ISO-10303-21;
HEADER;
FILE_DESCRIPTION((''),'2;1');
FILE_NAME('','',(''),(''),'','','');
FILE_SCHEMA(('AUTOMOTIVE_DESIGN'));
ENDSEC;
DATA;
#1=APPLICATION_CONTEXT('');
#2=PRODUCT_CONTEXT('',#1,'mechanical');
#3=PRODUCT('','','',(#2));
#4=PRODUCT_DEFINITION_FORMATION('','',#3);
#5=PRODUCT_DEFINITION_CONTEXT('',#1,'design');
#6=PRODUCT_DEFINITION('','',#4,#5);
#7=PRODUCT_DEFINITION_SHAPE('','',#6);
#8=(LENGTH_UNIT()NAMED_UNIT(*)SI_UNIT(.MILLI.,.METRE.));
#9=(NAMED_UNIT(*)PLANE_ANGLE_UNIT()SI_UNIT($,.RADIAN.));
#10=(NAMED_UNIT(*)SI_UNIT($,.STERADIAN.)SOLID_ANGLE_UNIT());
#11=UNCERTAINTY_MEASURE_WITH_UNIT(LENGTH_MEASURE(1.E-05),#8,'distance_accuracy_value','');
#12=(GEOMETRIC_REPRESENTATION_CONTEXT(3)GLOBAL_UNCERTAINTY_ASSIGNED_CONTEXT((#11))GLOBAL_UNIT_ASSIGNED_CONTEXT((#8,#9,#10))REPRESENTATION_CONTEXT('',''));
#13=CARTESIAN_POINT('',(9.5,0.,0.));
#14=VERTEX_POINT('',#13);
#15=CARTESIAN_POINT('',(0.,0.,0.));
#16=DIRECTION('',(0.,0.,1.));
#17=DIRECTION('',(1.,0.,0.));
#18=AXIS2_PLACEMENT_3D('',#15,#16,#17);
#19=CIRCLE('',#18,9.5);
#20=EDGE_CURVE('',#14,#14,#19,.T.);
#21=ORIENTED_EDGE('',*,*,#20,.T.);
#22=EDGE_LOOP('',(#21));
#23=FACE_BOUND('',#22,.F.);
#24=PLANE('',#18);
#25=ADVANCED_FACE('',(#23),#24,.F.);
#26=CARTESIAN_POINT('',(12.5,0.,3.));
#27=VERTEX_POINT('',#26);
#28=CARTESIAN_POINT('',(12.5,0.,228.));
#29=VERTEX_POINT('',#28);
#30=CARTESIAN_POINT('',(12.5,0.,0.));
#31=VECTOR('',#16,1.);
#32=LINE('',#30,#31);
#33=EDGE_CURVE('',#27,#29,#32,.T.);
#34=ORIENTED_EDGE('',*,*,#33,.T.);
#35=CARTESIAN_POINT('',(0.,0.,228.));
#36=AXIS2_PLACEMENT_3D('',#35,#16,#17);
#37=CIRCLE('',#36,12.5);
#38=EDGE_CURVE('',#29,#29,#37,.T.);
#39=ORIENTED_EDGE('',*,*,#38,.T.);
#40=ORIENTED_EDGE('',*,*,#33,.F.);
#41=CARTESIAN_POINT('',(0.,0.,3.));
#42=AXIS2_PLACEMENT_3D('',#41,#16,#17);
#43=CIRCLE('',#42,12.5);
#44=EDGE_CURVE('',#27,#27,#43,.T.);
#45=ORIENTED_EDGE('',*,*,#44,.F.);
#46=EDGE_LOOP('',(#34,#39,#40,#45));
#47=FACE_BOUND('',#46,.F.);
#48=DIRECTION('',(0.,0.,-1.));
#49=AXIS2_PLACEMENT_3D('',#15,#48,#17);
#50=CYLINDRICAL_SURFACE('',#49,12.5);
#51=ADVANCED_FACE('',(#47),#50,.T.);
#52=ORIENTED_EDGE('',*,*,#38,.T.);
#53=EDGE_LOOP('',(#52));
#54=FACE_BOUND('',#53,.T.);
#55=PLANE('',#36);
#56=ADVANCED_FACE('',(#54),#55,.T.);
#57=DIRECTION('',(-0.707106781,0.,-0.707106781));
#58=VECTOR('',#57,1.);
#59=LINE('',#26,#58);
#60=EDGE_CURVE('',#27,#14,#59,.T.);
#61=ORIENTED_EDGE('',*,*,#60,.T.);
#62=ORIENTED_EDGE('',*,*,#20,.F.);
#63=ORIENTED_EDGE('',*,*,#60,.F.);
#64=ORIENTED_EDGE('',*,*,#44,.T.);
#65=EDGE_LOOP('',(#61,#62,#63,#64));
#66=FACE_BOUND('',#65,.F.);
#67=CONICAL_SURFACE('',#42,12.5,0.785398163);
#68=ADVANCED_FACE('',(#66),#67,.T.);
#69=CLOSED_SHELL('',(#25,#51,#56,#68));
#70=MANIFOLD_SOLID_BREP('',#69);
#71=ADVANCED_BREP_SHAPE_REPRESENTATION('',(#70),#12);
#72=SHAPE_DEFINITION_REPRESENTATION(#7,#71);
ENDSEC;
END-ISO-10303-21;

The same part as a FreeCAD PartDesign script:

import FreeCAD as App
import Part
import Sketcher
from FreeCAD import Vector


def edges_at(feature, points):
    """Names of the edges that pass closest to the given points."""
    edges = feature.Shape.Edges
    near = lambda p: min(range(len(edges)), key=lambda i: edges[i].distToShape(Part.Vertex(*p))[0])
    return sorted({f"Edge{near(p) + 1}" for p in points})

doc = App.newDocument("Part")
body = doc.addObject("PartDesign::Body", "Body")

# Sketch on XY plane
sketch1 = doc.addObject("Sketcher::SketchObject", "Sketch")
body.addObject(sketch1)
sketch1.AttachmentSupport = (doc.XY_Plane, [""])
sketch1.MapMode = "FlatFace"
sketch1.addGeometry(Part.Circle(Vector(0, 0, 0), Vector(0, 0, 1), 12), False)
sketch1.addConstraint([
    Sketcher.Constraint("Coincident", 0, 3, -1, 1),
    Sketcher.Constraint("Diameter", 0, 25.0),
])
pad1 = doc.addObject("PartDesign::Pad", "Pad")
body.addObject(pad1)
pad1.Profile = sketch1
pad1.Length = 228
doc.recompute()

chamfer = doc.addObject("PartDesign::Chamfer", "Chamfer")
body.addObject(chamfer)
chamfer.Base = (pad1, edges_at(pad1, [(-12.5, 0, 0)]))
chamfer.Size = 3

doc.recompute()
